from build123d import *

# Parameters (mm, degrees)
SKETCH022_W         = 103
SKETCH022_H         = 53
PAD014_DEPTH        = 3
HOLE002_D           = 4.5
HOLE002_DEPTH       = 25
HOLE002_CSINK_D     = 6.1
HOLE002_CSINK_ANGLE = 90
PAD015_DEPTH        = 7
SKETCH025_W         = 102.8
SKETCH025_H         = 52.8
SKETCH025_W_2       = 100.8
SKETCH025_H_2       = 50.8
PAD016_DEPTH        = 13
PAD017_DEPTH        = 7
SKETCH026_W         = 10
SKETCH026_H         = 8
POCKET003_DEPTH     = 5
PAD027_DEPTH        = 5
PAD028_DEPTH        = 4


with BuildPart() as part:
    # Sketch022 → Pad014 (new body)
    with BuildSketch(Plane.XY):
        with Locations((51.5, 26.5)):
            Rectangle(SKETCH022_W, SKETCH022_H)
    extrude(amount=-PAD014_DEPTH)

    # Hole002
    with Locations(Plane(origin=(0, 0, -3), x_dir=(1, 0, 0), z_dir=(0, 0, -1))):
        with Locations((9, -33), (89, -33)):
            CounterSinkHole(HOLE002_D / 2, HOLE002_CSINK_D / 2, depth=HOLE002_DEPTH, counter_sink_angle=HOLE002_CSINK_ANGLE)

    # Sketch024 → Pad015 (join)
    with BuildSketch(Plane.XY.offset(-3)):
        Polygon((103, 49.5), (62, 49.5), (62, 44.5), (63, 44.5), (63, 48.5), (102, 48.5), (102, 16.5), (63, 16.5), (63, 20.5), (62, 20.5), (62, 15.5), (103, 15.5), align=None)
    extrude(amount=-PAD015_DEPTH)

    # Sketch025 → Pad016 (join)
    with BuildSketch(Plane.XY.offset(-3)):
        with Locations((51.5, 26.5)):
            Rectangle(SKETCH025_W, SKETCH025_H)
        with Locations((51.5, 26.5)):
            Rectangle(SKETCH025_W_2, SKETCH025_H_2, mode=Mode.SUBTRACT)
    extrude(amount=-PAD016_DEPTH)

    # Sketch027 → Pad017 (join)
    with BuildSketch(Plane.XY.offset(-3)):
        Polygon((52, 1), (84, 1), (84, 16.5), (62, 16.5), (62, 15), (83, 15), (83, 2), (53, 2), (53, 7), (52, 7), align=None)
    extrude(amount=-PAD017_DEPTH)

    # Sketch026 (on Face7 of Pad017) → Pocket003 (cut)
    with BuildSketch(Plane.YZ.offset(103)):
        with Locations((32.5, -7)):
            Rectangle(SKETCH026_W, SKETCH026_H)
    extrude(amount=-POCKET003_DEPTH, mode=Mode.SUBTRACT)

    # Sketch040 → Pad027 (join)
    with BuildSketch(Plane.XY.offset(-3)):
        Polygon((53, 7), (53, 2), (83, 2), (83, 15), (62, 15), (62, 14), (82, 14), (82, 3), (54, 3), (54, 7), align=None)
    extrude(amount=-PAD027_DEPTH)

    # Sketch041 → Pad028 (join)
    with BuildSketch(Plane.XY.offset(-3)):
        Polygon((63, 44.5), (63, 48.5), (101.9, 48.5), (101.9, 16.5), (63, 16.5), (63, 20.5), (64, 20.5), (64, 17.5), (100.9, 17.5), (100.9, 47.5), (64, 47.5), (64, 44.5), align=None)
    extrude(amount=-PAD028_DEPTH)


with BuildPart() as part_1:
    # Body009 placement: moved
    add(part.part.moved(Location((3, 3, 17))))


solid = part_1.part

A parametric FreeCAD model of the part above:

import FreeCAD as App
import Part
import Sketcher
from FreeCAD import Vector
Q = App.Units.Quantity

doc = App.newDocument("Part")
body = doc.addObject("PartDesign::Body", "Body")

# Sketch on XY plane
sketch1 = body.newObject("Sketcher::SketchObject", "Sketch")
sketch1.AttachmentSupport = (doc.getObject("XY_Plane"), [""])
sketch1.MapMode = "FlatFace"
sketch1.addGeometry([
    Part.LineSegment(Vector(0, 53, 0), Vector(0, 0, 0)),
    Part.LineSegment(Vector(0, 0, 0), Vector(103, 0, 0)),
    Part.LineSegment(Vector(103, 0, 0), Vector(103, 53, 0)),
    Part.LineSegment(Vector(103, 53, 0), Vector(0, 53, 0)),
], False)
sketch1.addConstraint([
    Sketcher.Constraint("Coincident", 0, 2, 1, 1),
    Sketcher.Constraint("Coincident", 1, 2, 2, 1),
    Sketcher.Constraint("Coincident", 2, 2, 3, 1),
    Sketcher.Constraint("Coincident", 3, 2, 0, 1),
    Sketcher.Constraint("Vertical", 0),
    Sketcher.Constraint("Horizontal", 1),
    Sketcher.Constraint("Vertical", 2),
    Sketcher.Constraint("Horizontal", 3),
    Sketcher.Constraint("Coincident", 0, 2, -1, 1),
    Sketcher.Constraint("DistanceX", 1, 1, 1, 2, Q("103 mm")),
    Sketcher.Constraint("DistanceY", 0, 2, 0, 1, Q("53 mm")),
])
pad1 = body.newObject("PartDesign::Pad", "Pad")
pad1.Profile = sketch1
pad1.Length = 3
pad1.Reversed = True

# Sketch on XY plane
sketch2 = body.newObject("Sketcher::SketchObject", "Sketch001")
sketch2.AttachmentSupport = (doc.getObject("XY_Plane"), [""])
sketch2.MapMode = "FlatFace"
sketch2.AttachmentOffset = App.Placement(Vector(0, 0, -3), App.Rotation())
sketch2.addGeometry([
    Part.Circle(Vector(9, 33, 0), Vector(0, 0, 1), 2.25),
    Part.Circle(Vector(89, 33, 0), Vector(0, 0, 1), 2.25),
], False)
sketch2.addConstraint([
    Sketcher.Constraint("Equal", 0, 1),
    Sketcher.Constraint("Horizontal", 0, 3, 1, 3),
    Sketcher.Constraint("Diameter", 0, Q("4.5 mm")),
    Sketcher.Constraint("DistanceX", -1, 1, 0, 3, Q("9 mm")),
    Sketcher.Constraint("DistanceY", -1, 1, 0, 3, Q("33 mm")),
    Sketcher.Constraint("DistanceX", -1, 1, 1, 3, Q("89 mm")),
])
doc.recompute()
hole = body.newObject("PartDesign::Hole", "Hole")
hole.Profile = sketch2
hole.ThreadType = "None"
hole.Diameter = 4.5
hole.DepthType = "Dimension"
hole.Depth = 25
hole.DrillPoint = "Flat"
hole.HoleCutType = "Countersink"
hole.HoleCutDiameter = 6.1
hole.HoleCutCountersinkAngle = 90
hole.Reversed = True

# Sketch on XY plane
sketch3 = body.newObject("Sketcher::SketchObject", "Sketch002")
sketch3.AttachmentSupport = (doc.getObject("XY_Plane"), [""])
sketch3.MapMode = "FlatFace"
sketch3.AttachmentOffset = App.Placement(Vector(0, 0, -3), App.Rotation())
sketch3.addGeometry([
    Part.LineSegment(Vector(103, 49.5, 0), Vector(62, 49.5, 0)),  # 0
    Part.LineSegment(Vector(62, 49.5, 0), Vector(62, 44.5, 0)),  # 1
    Part.LineSegment(Vector(62, 44.5, 0), Vector(63, 44.5, 0)),  # 2
    Part.LineSegment(Vector(63, 44.5, 0), Vector(63, 48.5, 0)),  # 3
    Part.LineSegment(Vector(63, 48.5, 0), Vector(102, 48.5, 0)),  # 4
    Part.LineSegment(Vector(102, 48.5, 0), Vector(102, 16.5, 0)),  # 5
    Part.LineSegment(Vector(102, 16.5, 0), Vector(63, 16.5, 0)),  # 6
    Part.LineSegment(Vector(63, 16.5, 0), Vector(63, 20.5, 0)),  # 7
    Part.LineSegment(Vector(63, 20.5, 0), Vector(62, 20.5, 0)),  # 8
    Part.LineSegment(Vector(62, 20.5, 0), Vector(62, 15.5, 0)),  # 9
    Part.LineSegment(Vector(62, 15.5, 0), Vector(103, 15.5, 0)),  # 10
    Part.LineSegment(Vector(103, 15.5, 0), Vector(103, 49.5, 0)),  # 11
], False)
sketch3.addConstraint([
    Sketcher.Constraint("Coincident", 0, 2, 1, 1),
    Sketcher.Constraint("Coincident", 1, 2, 2, 1),
    Sketcher.Constraint("Coincident", 2, 2, 3, 1),
    Sketcher.Constraint("Coincident", 3, 2, 4, 1),
    Sketcher.Constraint("Coincident", 4, 2, 5, 1),
    Sketcher.Constraint("Coincident", 5, 2, 6, 1),
    Sketcher.Constraint("Coincident", 6, 2, 7, 1),
    Sketcher.Constraint("Coincident", 7, 2, 8, 1),
    Sketcher.Constraint("Coincident", 8, 2, 9, 1),
    Sketcher.Constraint("Coincident", 9, 2, 10, 1),
    Sketcher.Constraint("Coincident", 10, 2, 11, 1),
    Sketcher.Constraint("Coincident", 11, 2, 0, 1),
    Sketcher.Constraint("Horizontal", 0),
    Sketcher.Constraint("Vertical", 1),
    Sketcher.Constraint("Horizontal", 2),
    Sketcher.Constraint("Vertical", 3),
    Sketcher.Constraint("Horizontal", 4),
    Sketcher.Constraint("Vertical", 5),
    Sketcher.Constraint("Horizontal", 6),
    Sketcher.Constraint("Vertical", 7),
    Sketcher.Constraint("Horizontal", 8),
    Sketcher.Constraint("Vertical", 9),
    Sketcher.Constraint("Horizontal", 10),
    Sketcher.Constraint("Vertical", 11),
    Sketcher.Constraint("Vertical", 3, 2, 6, 2),
    Sketcher.Constraint("Vertical", 1, 2, 8, 2),
    Sketcher.Constraint("Equal", 3, 7),
    Sketcher.Constraint("Equal", 1, 9),
    Sketcher.Constraint("DistanceX", 0, 2, 0, 1, Q("41 mm")),
    Sketcher.Constraint("DistanceX", 2, 1, 2, 2, Q("1 mm")),
    Sketcher.Constraint("DistanceX", 4, 1, 4, 2, Q("39 mm")),
    Sketcher.Constraint("DistanceY", 1, 2, 1, 1, Q("5 mm")),
    Sketcher.Constraint("DistanceY", 3, 1, 3, 2, Q("4 mm")),
    Sketcher.Constraint("DistanceY", 5, 2, 5, 1, Q("32 mm")),
    Sketcher.Constraint("DistanceX", -1, 1, 0, 2, Q("62 mm")),
    Sketcher.Constraint("DistanceY", -1, 1, 0, 2, Q("49.5 mm")),
])
pad2 = body.newObject("PartDesign::Pad", "Pad001")
pad2.Profile = sketch3
pad2.Length = 7
pad2.Reversed = True

# Sketch on XY plane
sketch4 = body.newObject("Sketcher::SketchObject", "Sketch003")
sketch4.AttachmentSupport = (doc.getObject("XY_Plane"), [""])
sketch4.MapMode = "FlatFace"
sketch4.AttachmentOffset = App.Placement(Vector(0, 0, -3), App.Rotation())
sketch4.addGeometry([
    Part.LineSegment(Vector(0.1, 52.9, 0), Vector(0.1, 0.1, 0)),  # 0
    Part.LineSegment(Vector(0.1, 0.1, 0), Vector(102.9, 0.1, 0)),  # 1
    Part.LineSegment(Vector(102.9, 0.1, 0), Vector(102.9, 52.9, 0)),  # 2
    Part.LineSegment(Vector(102.9, 52.9, 0), Vector(0.1, 52.9, 0)),  # 3
    Part.LineSegment(Vector(101.9, 1.1, 0), Vector(1.1, 1.1, 0)),  # 4
    Part.LineSegment(Vector(1.1, 1.1, 0), Vector(1.1, 51.9, 0)),  # 5
    Part.LineSegment(Vector(1.1, 51.9, 0), Vector(101.9, 51.9, 0)),  # 6
    Part.LineSegment(Vector(101.9, 51.9, 0), Vector(101.9, 1.1, 0)),  # 7
], False)
sketch4.addConstraint([
    Sketcher.Constraint("Coincident", 0, 2, 1, 1),
    Sketcher.Constraint("Coincident", 1, 2, 2, 1),
    Sketcher.Constraint("Coincident", 2, 2, 3, 1),
    Sketcher.Constraint("Coincident", 3, 2, 0, 1),
    Sketcher.Constraint("Coincident", 4, 2, 5, 1),
    Sketcher.Constraint("Coincident", 5, 2, 6, 1),
    Sketcher.Constraint("Coincident", 6, 2, 7, 1),
    Sketcher.Constraint("Coincident", 7, 2, 4, 1),
    Sketcher.Constraint("Vertical", 0),
    Sketcher.Constraint("Horizontal", 1),
    Sketcher.Constraint("Vertical", 2),
    Sketcher.Constraint("Horizontal", 3),
    Sketcher.Constraint("Horizontal", 4),
    Sketcher.Constraint("Vertical", 5),
    Sketcher.Constraint("Horizontal", 6),
    Sketcher.Constraint("Vertical", 7),
    Sketcher.Constraint("DistanceX", 1, 1, 1, 2, Q("102.8 mm")),
    Sketcher.Constraint("DistanceX", 4, 2, 4, 1, Q("100.8 mm")),
    Sketcher.Constraint("DistanceY", 0, 2, 0, 1, Q("52.8 mm")),
    Sketcher.Constraint("DistanceY", 5, 1, 5, 2, Q("50.8 mm")),
    Sketcher.Constraint("DistanceX", 0, 2, 4, 2, Q("1 mm")),
    Sketcher.Constraint("DistanceY", 0, 2, 4, 2, Q("1 mm")),
    Sketcher.Constraint("DistanceX", -1, 1, 0, 2, Q("0.1 mm")),
    Sketcher.Constraint("DistanceY", -1, 1, 0, 2, Q("0.1 mm")),
])
pad3 = body.newObject("PartDesign::Pad", "Pad002")
pad3.Profile = sketch4
pad3.Length = 13
pad3.Reversed = True

# Sketch on XY plane
sketch5 = body.newObject("Sketcher::SketchObject", "Sketch004")
sketch5.AttachmentSupport = (doc.getObject("XY_Plane"), [""])
sketch5.MapMode = "FlatFace"
sketch5.AttachmentOffset = App.Placement(Vector(0, 0, -3), App.Rotation())
sketch5.addGeometry([
    Part.LineSegment(Vector(52, 1, 0), Vector(84, 1, 0)),  # 0
    Part.LineSegment(Vector(84, 1, 0), Vector(84, 16.5, 0)),  # 1
    Part.LineSegment(Vector(84, 16.5, 0), Vector(62, 16.5, 0)),  # 2
    Part.LineSegment(Vector(62, 16.5, 0), Vector(62, 15, 0)),  # 3
    Part.LineSegment(Vector(62, 15, 0), Vector(83, 15, 0)),  # 4
    Part.LineSegment(Vector(83, 15, 0), Vector(83, 2, 0)),  # 5
    Part.LineSegment(Vector(83, 2, 0), Vector(53, 2, 0)),  # 6
    Part.LineSegment(Vector(53, 2, 0), Vector(53, 7, 0)),  # 7
    Part.LineSegment(Vector(53, 7, 0), Vector(52, 7, 0)),  # 8
    Part.LineSegment(Vector(52, 7, 0), Vector(52, 1, 0)),  # 9
], False)
sketch5.addConstraint([
    Sketcher.Constraint("Coincident", 0, 2, 1, 1),
    Sketcher.Constraint("Coincident", 1, 2, 2, 1),
    Sketcher.Constraint("Coincident", 2, 2, 3, 1),
    Sketcher.Constraint("Coincident", 3, 2, 4, 1),
    Sketcher.Constraint("Coincident", 4, 2, 5, 1),
    Sketcher.Constraint("Coincident", 5, 2, 6, 1),
    Sketcher.Constraint("Coincident", 6, 2, 7, 1),
    Sketcher.Constraint("Coincident", 7, 2, 8, 1),
    Sketcher.Constraint("Coincident", 8, 2, 9, 1),
    Sketcher.Constraint("Coincident", 9, 2, 0, 1),
    Sketcher.Constraint("Horizontal", 0),
    Sketcher.Constraint("Vertical", 1),
    Sketcher.Constraint("Horizontal", 2),
    Sketcher.Constraint("Vertical", 3),
    Sketcher.Constraint("Horizontal", 4),
    Sketcher.Constraint("Vertical", 5),
    Sketcher.Constraint("Horizontal", 6),
    Sketcher.Constraint("Vertical", 7),
    Sketcher.Constraint("Horizontal", 8),
    Sketcher.Constraint("Vertical", 9),
    Sketcher.Constraint("DistanceX", 0, 1, 0, 2, Q("32 mm")),
    Sketcher.Constraint("DistanceX", 2, 2, 2, 1, Q("22 mm")),
    Sketcher.Constraint("DistanceX", 4, 1, 4, 2, Q("21 mm")),
    Sketcher.Constraint("DistanceX", 6, 2, 6, 1, Q("30 mm")),
    Sketcher.Constraint("DistanceY", 5, 2, 5, 1, Q("13 mm")),
    Sketcher.Constraint("DistanceY", 7, 1, 7, 2, Q("5 mm")),
    Sketcher.Constraint("DistanceY", 9, 2, 9, 1, Q("6 mm")),
    Sketcher.Constraint("DistanceY", 1, 1, 1, 2, Q("15.5 mm")),
    Sketcher.Constraint("DistanceX", -1, 1, 0, 2, Q("84 mm")),
    Sketcher.Constraint("DistanceY", -1, 1, 0, 2, Q("1 mm")),
])
pad4 = body.newObject("PartDesign::Pad", "Pad003")
pad4.Profile = sketch5
pad4.Length = 7
pad4.Reversed = True

# Sketch on YZ plane
sketch6 = body.newObject("Sketcher::SketchObject", "Sketch005")
sketch6.AttachmentSupport = (doc.getObject("YZ_Plane"), [""])
sketch6.MapMode = "FlatFace"
sketch6.AttachmentOffset = App.Placement(Vector(0, 0, 103), App.Rotation())
sketch6.addGeometry([
    Part.LineSegment(Vector(27.5, -3, 0), Vector(27.5, -11, 0)),
    Part.LineSegment(Vector(27.5, -11, 0), Vector(37.5, -11, 0)),
    Part.LineSegment(Vector(37.5, -11, 0), Vector(37.5, -3, 0)),
    Part.LineSegment(Vector(37.5, -3, 0), Vector(27.5, -3, 0)),
], False)
sketch6.addConstraint([
    Sketcher.Constraint("Coincident", 0, 2, 1, 1),
    Sketcher.Constraint("Coincident", 1, 2, 2, 1),
    Sketcher.Constraint("Coincident", 2, 2, 3, 1),
    Sketcher.Constraint("Coincident", 3, 2, 0, 1),
    Sketcher.Constraint("Vertical", 0),
    Sketcher.Constraint("Horizontal", 1),
    Sketcher.Constraint("Vertical", 2),
    Sketcher.Constraint("Horizontal", 3),
    Sketcher.Constraint("DistanceX", 1, 1, 1, 2, Q("10 mm")),
    Sketcher.Constraint("DistanceY", 0, 2, 0, 1, Q("8 mm")),
    Sketcher.Constraint("DistanceY", 0, 2, -1, 1, Q("11 mm")),
    Sketcher.Constraint("DistanceX", -1, 1, 0, 2, Q("27.5 mm")),
])
pocket1 = body.newObject("PartDesign::Pocket", "Pocket")
pocket1.Profile = sketch6
pocket1.Length = 5

# Sketch on XY plane
sketch7 = body.newObject("Sketcher::SketchObject", "Sketch006")
sketch7.AttachmentSupport = (doc.getObject("XY_Plane"), [""])
sketch7.MapMode = "FlatFace"
sketch7.AttachmentOffset = App.Placement(Vector(0, 0, -3), App.Rotation())
sketch7.addGeometry([
    Part.LineSegment(Vector(53, 7, 0), Vector(53, 2, 0)),  # 0
    Part.LineSegment(Vector(53, 2, 0), Vector(83, 2, 0)),  # 1
    Part.LineSegment(Vector(83, 2, 0), Vector(83, 15, 0)),  # 2
    Part.LineSegment(Vector(83, 15, 0), Vector(62, 15, 0)),  # 3
    Part.LineSegment(Vector(62, 15, 0), Vector(62, 14, 0)),  # 4
    Part.LineSegment(Vector(62, 14, 0), Vector(82, 14, 0)),  # 5
    Part.LineSegment(Vector(82, 14, 0), Vector(82, 3, 0)),  # 6
    Part.LineSegment(Vector(82, 3, 0), Vector(54, 3, 0)),  # 7
    Part.LineSegment(Vector(54, 3, 0), Vector(54, 7, 0)),  # 8
    Part.LineSegment(Vector(54, 7, 0), Vector(53, 7, 0)),  # 9
], False)
sketch7.addConstraint([
    Sketcher.Constraint("Coincident", 0, 2, 1, 1),
    Sketcher.Constraint("Coincident", 1, 2, 2, 1),
    Sketcher.Constraint("Coincident", 2, 2, 3, 1),
    Sketcher.Constraint("Coincident", 3, 2, 4, 1),
    Sketcher.Constraint("Coincident", 4, 2, 5, 1),
    Sketcher.Constraint("Coincident", 5, 2, 6, 1),
    Sketcher.Constraint("Coincident", 6, 2, 7, 1),
    Sketcher.Constraint("Coincident", 7, 2, 8, 1),
    Sketcher.Constraint("Coincident", 8, 2, 9, 1),
    Sketcher.Constraint("Coincident", 9, 2, 0, 1),
    Sketcher.Constraint("Vertical", 0),
    Sketcher.Constraint("Horizontal", 1),
    Sketcher.Constraint("Vertical", 2),
    Sketcher.Constraint("Horizontal", 3),
    Sketcher.Constraint("Vertical", 4),
    Sketcher.Constraint("Horizontal", 5),
    Sketcher.Constraint("Vertical", 6),
    Sketcher.Constraint("Horizontal", 7),
    Sketcher.Constraint("Vertical", 8),
    Sketcher.Constraint("Horizontal", 9),
    Sketcher.Constraint("Equal", 9, 4),
    Sketcher.Constraint("DistanceX", 1, 1, 1, 2, Q("30 mm")),
    Sketcher.Constraint("DistanceX", 3, 2, 3, 1, Q("21 mm")),
    Sketcher.Constraint("DistanceX", 5, 1, 5, 2, Q("20 mm")),
    Sketcher.Constraint("DistanceX", 7, 2, 7, 1, Q("28 mm")),
    Sketcher.Constraint("DistanceY", 0, 2, 0, 1, Q("5 mm")),
    Sketcher.Constraint("DistanceY", 2, 1, 2, 2, Q("13 mm")),
    Sketcher.Constraint("DistanceY", 6, 2, 6, 1, Q("11 mm")),
    Sketcher.Constraint("DistanceX", -1, 1, 0, 2, Q("53 mm")),
    Sketcher.Constraint("DistanceY", -1, 1, 0, 2, Q("2 mm")),
])
pad5 = body.newObject("PartDesign::Pad", "Pad004")
pad5.Profile = sketch7
pad5.Length = 5
pad5.Reversed = True

# Sketch on XY plane
sketch8 = body.newObject("Sketcher::SketchObject", "Sketch007")
sketch8.AttachmentSupport = (doc.getObject("XY_Plane"), [""])
sketch8.MapMode = "FlatFace"
sketch8.AttachmentOffset = App.Placement(Vector(0, 0, -3), App.Rotation())
sketch8.addGeometry([
    Part.LineSegment(Vector(63, 48.5, 0), Vector(63, 44.5, 0)),  # 0
    Part.LineSegment(Vector(63, 44.5, 0), Vector(64, 44.5, 0)),  # 1
    Part.LineSegment(Vector(64, 44.5, 0), Vector(64, 47.5, 0)),  # 2
    Part.LineSegment(Vector(64, 47.5, 0), Vector(100.9, 47.5, 0)),  # 3
    Part.LineSegment(Vector(100.9, 47.5, 0), Vector(100.9, 17.5, 0)),  # 4
    Part.LineSegment(Vector(100.9, 17.5, 0), Vector(64, 17.5, 0)),  # 5
    Part.LineSegment(Vector(64, 17.5, 0), Vector(64, 20.5, 0)),  # 6
    Part.LineSegment(Vector(64, 20.5, 0), Vector(63, 20.5, 0)),  # 7
    Part.LineSegment(Vector(63, 20.5, 0), Vector(63, 16.5, 0)),  # 8
    Part.LineSegment(Vector(63, 16.5, 0), Vector(101.9, 16.5, 0)),  # 9
    Part.LineSegment(Vector(101.9, 16.5, 0), Vector(101.9, 48.5, 0)),  # 10
    Part.LineSegment(Vector(101.9, 48.5, 0), Vector(63, 48.5, 0)),  # 11
], False)
sketch8.addConstraint([
    Sketcher.Constraint("Coincident", 0, 2, 1, 1),
    Sketcher.Constraint("Coincident", 1, 2, 2, 1),
    Sketcher.Constraint("Coincident", 2, 2, 3, 1),
    Sketcher.Constraint("Coincident", 3, 2, 4, 1),
    Sketcher.Constraint("Coincident", 4, 2, 5, 1),
    Sketcher.Constraint("Coincident", 5, 2, 6, 1),
    Sketcher.Constraint("Coincident", 6, 2, 7, 1),
    Sketcher.Constraint("Coincident", 7, 2, 8, 1),
    Sketcher.Constraint("Coincident", 8, 2, 9, 1),
    Sketcher.Constraint("Coincident", 9, 2, 10, 1),
    Sketcher.Constraint("Coincident", 10, 2, 11, 1),
    Sketcher.Constraint("Coincident", 11, 2, 0, 1),
    Sketcher.Constraint("Vertical", 0),
    Sketcher.Constraint("Horizontal", 1),
    Sketcher.Constraint("Vertical", 2),
    Sketcher.Constraint("Horizontal", 3),
    Sketcher.Constraint("Vertical", 4),
    Sketcher.Constraint("Horizontal", 5),
    Sketcher.Constraint("Vertical", 6),
    Sketcher.Constraint("Horizontal", 7),
    Sketcher.Constraint("Vertical", 8),
    Sketcher.Constraint("Horizontal", 9),
    Sketcher.Constraint("Vertical", 10),
    Sketcher.Constraint("Horizontal", 11),
    Sketcher.Constraint("Vertical", 2, 2, 5, 2),
    Sketcher.Constraint("Vertical", 0, 2, 7, 2),
    Sketcher.Constraint("Equal", 2, 6),
    Sketcher.Constraint("Equal", 0, 8),
    Sketcher.Constraint("DistanceX", 1, 1, 1, 2, Q("1 mm")),
    Sketcher.Constraint("DistanceY", 0, 2, 0, 1, Q("4 mm")),
    Sketcher.Constraint("DistanceY", 2, 1, 2, 2, Q("3 mm")),
    Sketcher.Constraint("DistanceY", 4, 2, 4, 1, Q("30 mm")),
    Sketcher.Constraint("DistanceX", 3, 1, 3, 2, Q("36.9 mm")),
    Sketcher.Constraint("DistanceX", 9, 1, 9, 2, Q("38.9 mm")),
    Sketcher.Constraint("DistanceX", -1, 1, 0, 2, Q("63 mm")),
    Sketcher.Constraint("DistanceY", -1, 1, 0, 2, Q("44.5 mm")),
])
pad6 = body.newObject("PartDesign::Pad", "Pad005")
pad6.Profile = sketch8
pad6.Length = 4
pad6.Reversed = True
body2 = doc.addObject("PartDesign::Body", "Body001")
doc.recompute()

body.Placement = App.Placement(Vector(3, 3, 17), App.Rotation(Vector(0, 0, 1), 0))
boolean = body2.newObject("PartDesign::Boolean", "Boolean")
boolean.Type = "Fuse"
boolean.addObjects([body])

doc.recompute()
